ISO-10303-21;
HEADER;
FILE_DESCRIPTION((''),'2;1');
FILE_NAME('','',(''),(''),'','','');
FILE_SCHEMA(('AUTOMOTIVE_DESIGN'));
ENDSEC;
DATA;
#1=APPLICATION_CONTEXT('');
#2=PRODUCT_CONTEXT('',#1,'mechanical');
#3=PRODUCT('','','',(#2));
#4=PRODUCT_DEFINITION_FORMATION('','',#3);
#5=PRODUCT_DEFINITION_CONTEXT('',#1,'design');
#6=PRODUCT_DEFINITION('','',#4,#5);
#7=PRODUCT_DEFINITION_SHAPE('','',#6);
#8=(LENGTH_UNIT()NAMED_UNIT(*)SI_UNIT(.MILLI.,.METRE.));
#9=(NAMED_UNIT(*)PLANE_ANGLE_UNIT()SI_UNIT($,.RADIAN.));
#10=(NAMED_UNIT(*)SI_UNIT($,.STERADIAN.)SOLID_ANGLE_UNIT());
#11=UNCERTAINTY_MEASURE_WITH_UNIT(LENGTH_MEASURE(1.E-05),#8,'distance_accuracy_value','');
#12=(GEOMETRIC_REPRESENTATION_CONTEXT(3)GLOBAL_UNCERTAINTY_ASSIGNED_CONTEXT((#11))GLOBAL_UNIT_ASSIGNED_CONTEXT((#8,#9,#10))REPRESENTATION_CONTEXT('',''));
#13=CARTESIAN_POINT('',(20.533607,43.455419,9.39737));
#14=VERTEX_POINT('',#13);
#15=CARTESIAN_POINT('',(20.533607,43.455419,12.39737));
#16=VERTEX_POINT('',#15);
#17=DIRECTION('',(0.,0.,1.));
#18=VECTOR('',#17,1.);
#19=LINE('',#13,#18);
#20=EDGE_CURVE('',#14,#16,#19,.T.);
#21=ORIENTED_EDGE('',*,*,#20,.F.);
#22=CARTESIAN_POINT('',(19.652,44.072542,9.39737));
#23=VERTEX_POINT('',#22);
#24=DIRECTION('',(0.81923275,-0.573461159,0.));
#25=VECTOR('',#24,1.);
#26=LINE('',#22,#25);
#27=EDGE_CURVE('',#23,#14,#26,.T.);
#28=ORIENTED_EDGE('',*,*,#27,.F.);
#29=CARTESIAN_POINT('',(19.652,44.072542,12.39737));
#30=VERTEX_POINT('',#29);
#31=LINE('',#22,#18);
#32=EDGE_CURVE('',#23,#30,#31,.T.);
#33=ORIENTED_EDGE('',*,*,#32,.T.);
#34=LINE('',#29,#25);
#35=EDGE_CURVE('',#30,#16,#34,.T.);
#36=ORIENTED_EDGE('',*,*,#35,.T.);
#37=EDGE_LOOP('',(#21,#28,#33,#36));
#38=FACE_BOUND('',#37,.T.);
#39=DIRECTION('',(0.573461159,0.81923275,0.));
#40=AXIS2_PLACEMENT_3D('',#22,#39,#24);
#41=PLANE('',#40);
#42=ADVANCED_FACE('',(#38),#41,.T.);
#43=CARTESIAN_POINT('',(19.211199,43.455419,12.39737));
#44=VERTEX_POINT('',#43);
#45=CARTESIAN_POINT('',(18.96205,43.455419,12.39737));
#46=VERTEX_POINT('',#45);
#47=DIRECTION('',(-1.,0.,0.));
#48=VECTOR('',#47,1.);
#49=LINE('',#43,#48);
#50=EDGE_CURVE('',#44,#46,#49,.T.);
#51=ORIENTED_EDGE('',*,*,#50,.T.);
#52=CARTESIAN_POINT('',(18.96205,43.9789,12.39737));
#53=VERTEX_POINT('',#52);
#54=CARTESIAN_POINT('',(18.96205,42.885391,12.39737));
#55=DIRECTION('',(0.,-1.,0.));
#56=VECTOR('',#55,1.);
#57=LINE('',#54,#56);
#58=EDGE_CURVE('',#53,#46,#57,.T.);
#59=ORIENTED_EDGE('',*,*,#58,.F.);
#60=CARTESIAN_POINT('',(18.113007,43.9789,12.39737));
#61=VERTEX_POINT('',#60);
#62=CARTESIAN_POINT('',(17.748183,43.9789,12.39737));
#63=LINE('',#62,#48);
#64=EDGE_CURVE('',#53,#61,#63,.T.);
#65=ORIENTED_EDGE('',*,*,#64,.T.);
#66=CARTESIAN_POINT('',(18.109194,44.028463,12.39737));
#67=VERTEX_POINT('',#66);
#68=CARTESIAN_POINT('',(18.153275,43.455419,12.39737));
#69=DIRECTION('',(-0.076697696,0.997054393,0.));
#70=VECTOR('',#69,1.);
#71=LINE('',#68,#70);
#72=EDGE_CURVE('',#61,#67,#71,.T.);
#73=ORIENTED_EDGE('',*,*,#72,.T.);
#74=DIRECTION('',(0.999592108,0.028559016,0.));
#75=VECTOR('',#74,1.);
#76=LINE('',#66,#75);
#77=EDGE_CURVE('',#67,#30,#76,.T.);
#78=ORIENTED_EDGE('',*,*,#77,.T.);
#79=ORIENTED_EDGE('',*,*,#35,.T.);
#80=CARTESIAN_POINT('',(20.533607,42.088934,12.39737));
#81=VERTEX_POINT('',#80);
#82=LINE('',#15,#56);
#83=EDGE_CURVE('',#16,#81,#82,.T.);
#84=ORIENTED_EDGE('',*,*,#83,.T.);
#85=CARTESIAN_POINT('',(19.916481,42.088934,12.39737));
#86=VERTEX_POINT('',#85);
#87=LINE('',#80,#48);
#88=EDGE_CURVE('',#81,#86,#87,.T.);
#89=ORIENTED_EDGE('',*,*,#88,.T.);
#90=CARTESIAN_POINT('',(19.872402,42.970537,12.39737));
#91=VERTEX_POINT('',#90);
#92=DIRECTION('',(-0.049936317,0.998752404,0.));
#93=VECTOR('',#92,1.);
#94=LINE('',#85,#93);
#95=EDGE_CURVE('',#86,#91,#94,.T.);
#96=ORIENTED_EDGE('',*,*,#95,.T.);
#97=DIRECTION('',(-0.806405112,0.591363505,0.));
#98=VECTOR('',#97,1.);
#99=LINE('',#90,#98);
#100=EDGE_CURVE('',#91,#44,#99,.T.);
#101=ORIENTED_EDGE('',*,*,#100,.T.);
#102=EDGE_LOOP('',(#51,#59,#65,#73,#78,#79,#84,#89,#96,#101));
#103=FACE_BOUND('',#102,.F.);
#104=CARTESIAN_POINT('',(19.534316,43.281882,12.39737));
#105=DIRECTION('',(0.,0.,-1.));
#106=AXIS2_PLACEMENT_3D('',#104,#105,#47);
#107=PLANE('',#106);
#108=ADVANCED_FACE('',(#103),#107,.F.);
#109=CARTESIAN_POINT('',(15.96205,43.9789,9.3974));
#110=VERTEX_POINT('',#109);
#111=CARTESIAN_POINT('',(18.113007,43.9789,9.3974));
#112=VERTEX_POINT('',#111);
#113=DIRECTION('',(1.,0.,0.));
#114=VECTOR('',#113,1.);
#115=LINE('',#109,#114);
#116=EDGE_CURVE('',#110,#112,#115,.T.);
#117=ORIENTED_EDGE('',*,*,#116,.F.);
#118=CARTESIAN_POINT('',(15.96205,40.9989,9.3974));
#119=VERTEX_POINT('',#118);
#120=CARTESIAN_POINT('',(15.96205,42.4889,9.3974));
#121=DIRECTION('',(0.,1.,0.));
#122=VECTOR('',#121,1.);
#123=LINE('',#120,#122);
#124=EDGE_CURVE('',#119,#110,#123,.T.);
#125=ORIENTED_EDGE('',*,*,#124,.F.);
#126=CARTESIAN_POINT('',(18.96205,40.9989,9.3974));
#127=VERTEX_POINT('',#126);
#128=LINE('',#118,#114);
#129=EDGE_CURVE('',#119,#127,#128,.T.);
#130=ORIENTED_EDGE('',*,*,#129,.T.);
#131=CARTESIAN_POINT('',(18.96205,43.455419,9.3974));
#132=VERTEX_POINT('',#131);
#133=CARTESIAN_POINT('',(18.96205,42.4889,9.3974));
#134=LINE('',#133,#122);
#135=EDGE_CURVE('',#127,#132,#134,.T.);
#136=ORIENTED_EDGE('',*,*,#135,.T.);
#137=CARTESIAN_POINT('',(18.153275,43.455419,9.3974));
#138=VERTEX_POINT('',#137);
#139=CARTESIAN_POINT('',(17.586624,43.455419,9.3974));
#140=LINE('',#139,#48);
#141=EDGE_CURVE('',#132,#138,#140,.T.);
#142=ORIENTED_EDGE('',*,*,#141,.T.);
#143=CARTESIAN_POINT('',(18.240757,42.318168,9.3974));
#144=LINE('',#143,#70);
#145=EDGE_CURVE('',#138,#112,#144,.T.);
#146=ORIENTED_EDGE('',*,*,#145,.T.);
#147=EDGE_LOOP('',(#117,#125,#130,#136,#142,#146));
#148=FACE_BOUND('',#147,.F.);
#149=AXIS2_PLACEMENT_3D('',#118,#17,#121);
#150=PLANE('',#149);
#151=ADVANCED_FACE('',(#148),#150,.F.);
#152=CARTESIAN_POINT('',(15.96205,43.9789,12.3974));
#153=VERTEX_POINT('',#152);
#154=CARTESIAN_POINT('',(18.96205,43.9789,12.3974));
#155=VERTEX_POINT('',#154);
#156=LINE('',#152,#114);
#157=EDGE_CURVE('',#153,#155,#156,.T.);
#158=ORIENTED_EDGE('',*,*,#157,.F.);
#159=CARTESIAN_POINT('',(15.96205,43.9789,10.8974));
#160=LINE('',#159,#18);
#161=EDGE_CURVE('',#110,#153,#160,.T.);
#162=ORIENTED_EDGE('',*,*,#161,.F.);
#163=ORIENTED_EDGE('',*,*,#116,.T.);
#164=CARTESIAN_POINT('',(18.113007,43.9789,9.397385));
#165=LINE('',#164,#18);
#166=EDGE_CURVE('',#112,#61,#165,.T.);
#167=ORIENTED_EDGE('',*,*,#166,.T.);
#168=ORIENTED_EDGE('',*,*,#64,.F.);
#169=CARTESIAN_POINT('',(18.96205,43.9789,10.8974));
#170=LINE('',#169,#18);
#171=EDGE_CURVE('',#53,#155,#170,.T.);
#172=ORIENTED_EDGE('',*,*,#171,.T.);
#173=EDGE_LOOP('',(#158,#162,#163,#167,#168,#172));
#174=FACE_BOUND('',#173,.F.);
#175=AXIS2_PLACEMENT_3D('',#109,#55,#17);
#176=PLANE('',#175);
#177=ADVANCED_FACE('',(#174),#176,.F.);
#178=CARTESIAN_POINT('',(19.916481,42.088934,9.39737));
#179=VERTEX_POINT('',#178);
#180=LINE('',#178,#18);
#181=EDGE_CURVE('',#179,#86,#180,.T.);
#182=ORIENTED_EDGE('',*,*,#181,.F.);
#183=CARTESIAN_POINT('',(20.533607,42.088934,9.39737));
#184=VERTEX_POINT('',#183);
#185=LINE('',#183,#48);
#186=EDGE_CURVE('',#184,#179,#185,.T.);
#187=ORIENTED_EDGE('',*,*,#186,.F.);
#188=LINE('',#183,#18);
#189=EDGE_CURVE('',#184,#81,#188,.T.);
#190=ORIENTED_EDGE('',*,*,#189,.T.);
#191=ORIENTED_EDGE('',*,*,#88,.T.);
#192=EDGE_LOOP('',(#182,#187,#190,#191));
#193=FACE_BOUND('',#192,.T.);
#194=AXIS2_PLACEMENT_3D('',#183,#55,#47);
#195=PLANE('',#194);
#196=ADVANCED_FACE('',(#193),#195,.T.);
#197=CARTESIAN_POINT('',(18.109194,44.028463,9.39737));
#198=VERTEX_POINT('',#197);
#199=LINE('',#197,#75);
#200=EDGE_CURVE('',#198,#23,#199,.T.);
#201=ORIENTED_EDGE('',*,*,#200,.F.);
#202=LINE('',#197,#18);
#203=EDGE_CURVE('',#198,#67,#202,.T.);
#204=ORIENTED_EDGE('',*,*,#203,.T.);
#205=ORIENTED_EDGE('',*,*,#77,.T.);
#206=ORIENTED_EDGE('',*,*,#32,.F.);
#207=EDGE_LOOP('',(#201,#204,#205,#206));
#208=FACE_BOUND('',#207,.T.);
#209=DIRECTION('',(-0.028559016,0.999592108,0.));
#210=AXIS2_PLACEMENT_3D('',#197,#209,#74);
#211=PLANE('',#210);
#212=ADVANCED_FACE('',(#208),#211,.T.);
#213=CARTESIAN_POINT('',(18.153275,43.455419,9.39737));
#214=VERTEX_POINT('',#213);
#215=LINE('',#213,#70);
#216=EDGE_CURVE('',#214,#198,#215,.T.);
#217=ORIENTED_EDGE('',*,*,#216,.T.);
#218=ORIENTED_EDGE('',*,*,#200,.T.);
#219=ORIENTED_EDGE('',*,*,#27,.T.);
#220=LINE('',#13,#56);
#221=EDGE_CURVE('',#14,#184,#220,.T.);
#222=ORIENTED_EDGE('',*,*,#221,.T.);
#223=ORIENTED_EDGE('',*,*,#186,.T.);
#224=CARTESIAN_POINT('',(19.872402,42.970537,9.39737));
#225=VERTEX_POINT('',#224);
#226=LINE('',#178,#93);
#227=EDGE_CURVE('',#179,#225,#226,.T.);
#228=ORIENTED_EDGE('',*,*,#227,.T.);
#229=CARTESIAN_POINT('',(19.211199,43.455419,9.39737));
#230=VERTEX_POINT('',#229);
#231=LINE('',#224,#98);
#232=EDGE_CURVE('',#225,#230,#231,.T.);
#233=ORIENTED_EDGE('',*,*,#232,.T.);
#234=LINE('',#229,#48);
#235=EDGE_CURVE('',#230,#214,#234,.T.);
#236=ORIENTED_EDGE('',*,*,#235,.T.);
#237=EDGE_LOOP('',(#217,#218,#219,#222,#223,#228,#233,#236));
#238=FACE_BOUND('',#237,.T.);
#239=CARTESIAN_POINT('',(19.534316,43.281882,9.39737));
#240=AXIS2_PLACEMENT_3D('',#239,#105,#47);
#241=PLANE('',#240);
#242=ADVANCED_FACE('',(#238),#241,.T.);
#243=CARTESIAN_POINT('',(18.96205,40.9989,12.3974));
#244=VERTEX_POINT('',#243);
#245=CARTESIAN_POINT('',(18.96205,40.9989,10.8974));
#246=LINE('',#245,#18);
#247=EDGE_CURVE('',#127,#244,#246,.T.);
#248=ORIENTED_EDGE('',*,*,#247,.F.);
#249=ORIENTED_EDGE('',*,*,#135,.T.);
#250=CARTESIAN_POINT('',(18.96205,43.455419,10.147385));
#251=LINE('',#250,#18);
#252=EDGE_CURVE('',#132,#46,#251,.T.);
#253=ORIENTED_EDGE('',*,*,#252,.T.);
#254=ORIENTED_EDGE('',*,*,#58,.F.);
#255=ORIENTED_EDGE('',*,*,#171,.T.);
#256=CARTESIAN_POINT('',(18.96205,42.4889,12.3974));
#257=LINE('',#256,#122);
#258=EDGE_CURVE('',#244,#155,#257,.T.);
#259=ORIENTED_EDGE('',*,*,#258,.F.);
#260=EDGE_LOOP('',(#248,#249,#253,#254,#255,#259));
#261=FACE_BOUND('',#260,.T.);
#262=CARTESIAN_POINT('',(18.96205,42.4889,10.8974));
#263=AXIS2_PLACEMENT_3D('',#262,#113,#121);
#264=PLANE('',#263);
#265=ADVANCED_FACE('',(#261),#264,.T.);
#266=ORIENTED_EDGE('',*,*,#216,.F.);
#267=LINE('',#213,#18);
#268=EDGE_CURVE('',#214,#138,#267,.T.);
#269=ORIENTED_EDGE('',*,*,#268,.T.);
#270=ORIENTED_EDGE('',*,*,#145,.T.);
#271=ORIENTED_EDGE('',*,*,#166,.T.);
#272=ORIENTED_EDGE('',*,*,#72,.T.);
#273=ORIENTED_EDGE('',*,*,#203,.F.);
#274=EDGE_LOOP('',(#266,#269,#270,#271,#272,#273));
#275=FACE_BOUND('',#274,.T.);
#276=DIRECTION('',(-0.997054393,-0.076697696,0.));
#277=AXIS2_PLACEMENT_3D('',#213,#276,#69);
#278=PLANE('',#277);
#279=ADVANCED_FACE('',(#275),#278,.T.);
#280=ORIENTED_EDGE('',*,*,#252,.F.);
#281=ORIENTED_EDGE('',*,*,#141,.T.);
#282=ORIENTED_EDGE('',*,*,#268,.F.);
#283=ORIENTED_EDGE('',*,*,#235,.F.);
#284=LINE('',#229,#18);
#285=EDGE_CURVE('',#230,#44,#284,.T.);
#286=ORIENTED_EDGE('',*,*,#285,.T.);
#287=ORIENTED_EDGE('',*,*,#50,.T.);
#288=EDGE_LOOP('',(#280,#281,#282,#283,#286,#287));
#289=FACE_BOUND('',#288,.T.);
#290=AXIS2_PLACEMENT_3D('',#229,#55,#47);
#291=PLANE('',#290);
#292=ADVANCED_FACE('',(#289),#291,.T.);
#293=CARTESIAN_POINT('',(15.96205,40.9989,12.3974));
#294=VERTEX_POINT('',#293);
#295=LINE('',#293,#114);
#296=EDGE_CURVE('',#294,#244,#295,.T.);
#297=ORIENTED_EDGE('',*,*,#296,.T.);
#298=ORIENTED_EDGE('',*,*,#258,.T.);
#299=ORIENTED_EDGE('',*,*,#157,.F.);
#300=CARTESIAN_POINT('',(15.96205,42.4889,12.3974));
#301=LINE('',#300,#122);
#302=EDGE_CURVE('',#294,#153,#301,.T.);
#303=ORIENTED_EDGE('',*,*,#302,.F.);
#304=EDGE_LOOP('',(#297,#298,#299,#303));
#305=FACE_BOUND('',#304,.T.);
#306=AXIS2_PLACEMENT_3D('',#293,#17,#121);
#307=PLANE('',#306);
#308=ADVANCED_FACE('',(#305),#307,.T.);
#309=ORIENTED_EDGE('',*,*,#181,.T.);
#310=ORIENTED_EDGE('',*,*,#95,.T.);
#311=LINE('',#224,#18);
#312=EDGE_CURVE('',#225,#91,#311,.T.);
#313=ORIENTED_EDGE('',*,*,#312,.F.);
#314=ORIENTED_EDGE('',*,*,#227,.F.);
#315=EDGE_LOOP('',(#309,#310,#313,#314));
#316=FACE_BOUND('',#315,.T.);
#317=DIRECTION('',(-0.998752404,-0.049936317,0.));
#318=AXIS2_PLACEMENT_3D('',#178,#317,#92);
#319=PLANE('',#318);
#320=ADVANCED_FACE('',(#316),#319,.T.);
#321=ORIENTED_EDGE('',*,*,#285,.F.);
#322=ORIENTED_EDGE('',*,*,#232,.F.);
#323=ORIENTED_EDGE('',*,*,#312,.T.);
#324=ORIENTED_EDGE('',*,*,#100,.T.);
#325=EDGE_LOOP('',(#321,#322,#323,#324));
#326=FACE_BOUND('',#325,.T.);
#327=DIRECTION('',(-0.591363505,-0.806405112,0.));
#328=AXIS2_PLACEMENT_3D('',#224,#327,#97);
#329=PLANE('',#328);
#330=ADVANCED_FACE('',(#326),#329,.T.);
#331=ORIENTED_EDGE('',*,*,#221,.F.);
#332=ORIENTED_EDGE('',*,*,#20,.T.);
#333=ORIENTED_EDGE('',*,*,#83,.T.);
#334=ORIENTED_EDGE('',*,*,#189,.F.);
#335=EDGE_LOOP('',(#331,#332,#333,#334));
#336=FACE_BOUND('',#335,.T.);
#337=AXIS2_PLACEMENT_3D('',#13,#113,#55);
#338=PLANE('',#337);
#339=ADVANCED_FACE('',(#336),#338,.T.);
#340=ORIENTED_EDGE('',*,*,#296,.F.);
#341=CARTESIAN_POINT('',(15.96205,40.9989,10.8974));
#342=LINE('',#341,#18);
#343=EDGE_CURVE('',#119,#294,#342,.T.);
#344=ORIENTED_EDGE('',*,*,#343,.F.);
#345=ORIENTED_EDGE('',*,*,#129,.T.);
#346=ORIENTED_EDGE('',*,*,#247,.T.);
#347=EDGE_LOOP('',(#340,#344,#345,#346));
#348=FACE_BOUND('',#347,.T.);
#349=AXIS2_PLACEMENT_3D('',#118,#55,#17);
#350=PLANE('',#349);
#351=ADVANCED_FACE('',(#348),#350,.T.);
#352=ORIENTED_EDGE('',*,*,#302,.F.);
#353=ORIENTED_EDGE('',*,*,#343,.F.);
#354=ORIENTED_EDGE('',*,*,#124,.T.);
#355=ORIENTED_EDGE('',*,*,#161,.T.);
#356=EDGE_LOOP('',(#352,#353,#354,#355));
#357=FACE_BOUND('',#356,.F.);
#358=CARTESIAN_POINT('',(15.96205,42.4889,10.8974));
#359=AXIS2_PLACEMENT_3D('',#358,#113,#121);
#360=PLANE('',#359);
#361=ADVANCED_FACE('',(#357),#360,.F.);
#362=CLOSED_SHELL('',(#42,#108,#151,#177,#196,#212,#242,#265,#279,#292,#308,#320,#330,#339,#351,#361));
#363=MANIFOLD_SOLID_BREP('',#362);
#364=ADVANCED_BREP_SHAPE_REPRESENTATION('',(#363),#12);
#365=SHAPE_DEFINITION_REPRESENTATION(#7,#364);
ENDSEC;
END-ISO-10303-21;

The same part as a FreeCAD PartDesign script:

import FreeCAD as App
import Part
import Sketcher


def add_polygon(sketch, points):
    """Adds a closed chain of lines whose ends are joined by coincident constraints."""
    first, n = sketch.GeometryCount, len(points)
    for a, b in zip(points, points[1:] + points[:1]):
        sketch.addGeometry(Part.LineSegment(App.Vector(*a, 0), App.Vector(*b, 0)), False)
    for i in range(n):
        sketch.addConstraint(Sketcher.Constraint("Coincident", first + i, 2, first + (i + 1) % n, 1))

doc = App.newDocument("Part")
params = doc.addObject("Spreadsheet::Sheet", "Params")
for row, (alias, value) in enumerate([
    ("sketch1_height", "3 mm"),
    ("sketch1_width", "2.98 mm"),
    ("pad1_length", "3 mm"),
    ("pad2_length", "3 mm"),
], start=1):
    params.set(f"A{row}", alias)
    params.set(f"B{row}", "=" + value)
    params.setAlias(f"B{row}", alias)

body = doc.addObject("PartDesign::Body", "Body")

# Sketch on YZ plane
sketch1 = body.newObject("Sketcher::SketchObject", "Sketch")
sketch1.AttachmentSupport = (doc.getObject("YZ_Plane"), [""])
sketch1.MapMode = "FlatFace"
sketch1.AttachmentOffset = App.Placement(App.Vector(0, 0, 22.53), App.Rotation())
add_polygon(sketch1, [(42.1, 12.4), (42.1, 9.4), (45.1, 9.4), (45.1, 12.4)])  # lines 0-3
sketch1.addConstraint([
    Sketcher.Constraint("Vertical", 0),
    Sketcher.Constraint("Horizontal", 1),
    Sketcher.Constraint("Vertical", 2),
    Sketcher.Constraint("Horizontal", 3),
    Sketcher.Constraint("DistanceY", 0, 2, 0, 1, 3.0),
    Sketcher.Constraint("DistanceX", 1, 1, 1, 2, 2.98),
    Sketcher.Constraint("DistanceX", -1, 1, 0, 2, 42.0889),
    Sketcher.Constraint("DistanceY", -1, 1, 0, 2, 9.3974),
])
sketch1.setExpression("Constraints[8]", "Params.sketch1_height")
sketch1.setExpression("Constraints[9]", "Params.sketch1_width")
pad1 = body.newObject("PartDesign::Pad", "Pad")
pad1.Profile = sketch1
pad1.setExpression("Length", "Params.pad1_length")
body2 = doc.addObject("PartDesign::Body", "Body001")
doc.recompute()

body.Placement = App.Placement(App.Vector(-6.56795, -1.09, 0), App.Rotation(App.Vector(0, 0, 1), 0))
boolean = body2.newObject("PartDesign::Boolean", "Boolean")
boolean.Type = "Fuse"
boolean.addObjects([body])
body3 = doc.addObject("PartDesign::Body", "Body002")

# Sketch on XY plane
sketch2 = body3.newObject("Sketcher::SketchObject", "Sketch001")
sketch2.AttachmentSupport = (doc.getObject("XY_Plane002"), [""])
sketch2.MapMode = "FlatFace"
add_polygon(sketch2, [(24.1, 43.9), (24.2, 43.3), (25.2, 43.3), (25.9, 42.8), (25.9, 41.9), (26.5, 41.9), (26.5, 43.3), (25.7, 43.9)])  # lines 0-7
sketch2.addConstraint([
    Sketcher.Constraint("Horizontal", 1),
    Sketcher.Constraint("Horizontal", 4),
    Sketcher.Constraint("Vertical", 5),
    Sketcher.Constraint("Horizontal", 1, 2, 5, 2),
    Sketcher.Constraint("DistanceX", -1, 1, 6, 2, 25.652),
    Sketcher.Constraint("DistanceX", -1, 1, 1, 2, 25.211199),
    Sketcher.Constraint("DistanceX", 6, 2, 2, 2, 0.220402),
    Sketcher.Constraint("Distance", 2, 0.819939),
    Sketcher.Constraint("DistanceX", 1, 1, 1, 2, 1.057924),
    Sketcher.Constraint("DistanceX", 4, 1, 4, 2, 0.617126),
    Sketcher.Constraint("DistanceY", 5, 1, 5, 2, 1.366485),
    Sketcher.Constraint("DistanceY", -1, 1, 0, 2, 43.285419),
    Sketcher.Constraint("DistanceX", -1, 1, 3, 2, 25.916481),
    Sketcher.Constraint("DistanceY", -1, 1, 6, 2, 43.902542),
    Sketcher.Constraint("DistanceX", 7, 2, 0, 2, 0.044081),
    Sketcher.Constraint("DistanceY", 7, 2, 6, 2, 0.044079),
])
pad2 = body3.newObject("PartDesign::Pad", "Pad001")
pad2.Profile = sketch2
pad2.setExpression("Length", "Params.pad2_length")
body4 = doc.addObject("PartDesign::Body", "Body003")
doc.recompute()

body3.Placement = App.Placement(App.Vector(-6, 0.17, 9.39737), App.Rotation(App.Vector(0, 0, 1), 0))
boolean2 = body4.newObject("PartDesign::Boolean", "Boolean001")
boolean2.Type = "Fuse"
boolean2.addObjects([body3])
doc.recompute()

boolean3 = body4.newObject("PartDesign::Boolean", "Boolean002")
boolean3.Type = "Fuse"
boolean3.addObjects([body2])

doc.recompute()
